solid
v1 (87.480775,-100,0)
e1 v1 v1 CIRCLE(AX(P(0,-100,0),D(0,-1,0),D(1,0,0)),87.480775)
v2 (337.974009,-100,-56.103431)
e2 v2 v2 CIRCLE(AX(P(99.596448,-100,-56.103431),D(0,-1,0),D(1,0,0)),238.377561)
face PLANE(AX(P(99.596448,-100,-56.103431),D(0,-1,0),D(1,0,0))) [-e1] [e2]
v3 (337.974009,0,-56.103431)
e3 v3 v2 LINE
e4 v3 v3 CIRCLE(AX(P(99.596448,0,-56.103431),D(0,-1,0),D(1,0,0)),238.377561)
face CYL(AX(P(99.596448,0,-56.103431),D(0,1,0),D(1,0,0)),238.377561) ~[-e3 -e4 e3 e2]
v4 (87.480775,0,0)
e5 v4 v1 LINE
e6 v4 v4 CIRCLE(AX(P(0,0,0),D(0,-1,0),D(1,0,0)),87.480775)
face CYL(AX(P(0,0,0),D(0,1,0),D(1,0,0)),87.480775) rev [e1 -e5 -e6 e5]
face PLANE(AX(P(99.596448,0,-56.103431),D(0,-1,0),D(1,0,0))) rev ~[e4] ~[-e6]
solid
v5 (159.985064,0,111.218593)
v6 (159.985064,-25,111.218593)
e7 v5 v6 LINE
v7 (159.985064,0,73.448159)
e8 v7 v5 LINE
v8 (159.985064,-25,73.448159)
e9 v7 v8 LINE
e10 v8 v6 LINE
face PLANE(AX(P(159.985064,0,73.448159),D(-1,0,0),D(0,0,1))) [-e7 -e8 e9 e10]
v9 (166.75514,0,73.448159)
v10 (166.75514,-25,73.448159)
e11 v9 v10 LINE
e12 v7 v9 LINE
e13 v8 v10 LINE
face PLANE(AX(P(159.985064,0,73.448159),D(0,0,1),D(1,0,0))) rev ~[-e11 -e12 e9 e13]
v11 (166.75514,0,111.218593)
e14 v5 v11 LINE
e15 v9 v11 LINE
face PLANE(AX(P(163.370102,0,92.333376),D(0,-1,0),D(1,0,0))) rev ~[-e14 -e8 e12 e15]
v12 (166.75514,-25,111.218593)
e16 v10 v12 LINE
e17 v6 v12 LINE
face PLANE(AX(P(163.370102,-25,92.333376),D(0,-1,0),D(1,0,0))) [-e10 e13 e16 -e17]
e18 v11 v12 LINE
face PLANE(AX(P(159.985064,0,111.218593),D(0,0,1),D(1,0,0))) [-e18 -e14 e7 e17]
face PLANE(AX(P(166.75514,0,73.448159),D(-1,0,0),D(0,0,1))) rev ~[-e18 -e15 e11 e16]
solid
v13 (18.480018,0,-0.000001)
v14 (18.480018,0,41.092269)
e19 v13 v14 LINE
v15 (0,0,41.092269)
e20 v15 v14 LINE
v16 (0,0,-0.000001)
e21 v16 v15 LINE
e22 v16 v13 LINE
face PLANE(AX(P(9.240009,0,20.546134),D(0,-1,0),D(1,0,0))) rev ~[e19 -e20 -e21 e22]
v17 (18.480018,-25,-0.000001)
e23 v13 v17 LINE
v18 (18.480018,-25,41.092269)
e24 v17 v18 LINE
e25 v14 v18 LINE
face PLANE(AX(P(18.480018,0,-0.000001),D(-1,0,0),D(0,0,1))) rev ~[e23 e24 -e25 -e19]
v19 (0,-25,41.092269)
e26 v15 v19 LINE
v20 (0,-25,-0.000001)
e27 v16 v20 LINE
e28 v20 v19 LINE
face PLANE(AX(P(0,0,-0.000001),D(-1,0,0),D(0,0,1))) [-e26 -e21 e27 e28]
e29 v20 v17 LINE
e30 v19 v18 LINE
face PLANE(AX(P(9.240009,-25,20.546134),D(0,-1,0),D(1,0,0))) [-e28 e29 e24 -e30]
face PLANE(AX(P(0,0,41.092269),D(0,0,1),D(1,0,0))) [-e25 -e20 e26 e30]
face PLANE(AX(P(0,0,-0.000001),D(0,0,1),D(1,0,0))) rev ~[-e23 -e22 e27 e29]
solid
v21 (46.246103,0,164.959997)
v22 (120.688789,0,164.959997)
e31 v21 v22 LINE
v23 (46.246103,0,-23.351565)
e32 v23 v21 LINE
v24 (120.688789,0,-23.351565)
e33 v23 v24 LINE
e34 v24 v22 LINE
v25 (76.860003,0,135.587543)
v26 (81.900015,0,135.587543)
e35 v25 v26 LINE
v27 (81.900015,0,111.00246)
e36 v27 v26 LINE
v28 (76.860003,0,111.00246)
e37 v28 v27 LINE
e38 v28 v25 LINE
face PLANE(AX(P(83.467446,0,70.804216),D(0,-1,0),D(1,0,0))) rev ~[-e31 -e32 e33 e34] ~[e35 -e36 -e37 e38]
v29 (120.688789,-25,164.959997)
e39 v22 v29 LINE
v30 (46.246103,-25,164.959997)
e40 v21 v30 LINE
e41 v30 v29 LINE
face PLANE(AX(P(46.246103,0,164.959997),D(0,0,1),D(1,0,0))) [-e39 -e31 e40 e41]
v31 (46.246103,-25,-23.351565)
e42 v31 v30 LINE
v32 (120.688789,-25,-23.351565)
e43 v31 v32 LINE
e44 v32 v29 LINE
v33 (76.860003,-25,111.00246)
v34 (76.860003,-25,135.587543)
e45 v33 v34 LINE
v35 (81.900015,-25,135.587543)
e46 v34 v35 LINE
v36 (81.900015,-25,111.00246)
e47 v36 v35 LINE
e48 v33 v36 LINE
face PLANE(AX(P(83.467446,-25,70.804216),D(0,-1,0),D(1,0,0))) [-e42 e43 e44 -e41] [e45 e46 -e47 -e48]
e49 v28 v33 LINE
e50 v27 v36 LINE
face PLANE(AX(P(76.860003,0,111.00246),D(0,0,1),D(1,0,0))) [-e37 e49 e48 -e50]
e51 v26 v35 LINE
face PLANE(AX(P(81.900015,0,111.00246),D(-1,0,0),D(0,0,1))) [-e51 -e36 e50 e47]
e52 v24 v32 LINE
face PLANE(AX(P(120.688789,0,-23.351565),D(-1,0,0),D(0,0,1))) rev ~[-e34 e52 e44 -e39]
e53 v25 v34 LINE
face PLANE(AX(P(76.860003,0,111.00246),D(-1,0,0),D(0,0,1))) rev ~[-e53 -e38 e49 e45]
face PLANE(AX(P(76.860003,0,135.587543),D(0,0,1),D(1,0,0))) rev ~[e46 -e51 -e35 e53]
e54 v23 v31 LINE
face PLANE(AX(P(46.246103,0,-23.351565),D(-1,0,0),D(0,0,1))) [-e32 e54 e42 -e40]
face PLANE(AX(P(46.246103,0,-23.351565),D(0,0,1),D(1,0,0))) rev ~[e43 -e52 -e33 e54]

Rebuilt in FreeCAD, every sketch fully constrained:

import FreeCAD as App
import Part
import Sketcher

V = App.Vector
Q = App.Units.Quantity

doc = App.newDocument("Part")
body = doc.addObject("PartDesign::Body", "Body")
body.AllowCompound = True

# Sketch on XZ plane
sketch1 = body.newObject("Sketcher::SketchObject", "Sketch")
sketch1.AttachmentSupport = (doc.getObject("XZ_Plane"), [""])
sketch1.MapMode = "FlatFace"
sketch1.addGeometry([
    Part.LineSegment(V(0, 41, 0), V(0, 0, 0)),  # 0
    Part.LineSegment(V(0, 0, 0), V(18, 0, 0)),  # 1
    Part.LineSegment(V(18, 0, 0), V(18, 41, 0)),  # 2
    Part.LineSegment(V(18, 41, 0), V(0, 41, 0)),  # 3
    Part.LineSegment(V(46, 165, 0), V(46, -23, 0)),  # 4
    Part.LineSegment(V(46, -23, 0), V(121, -23, 0)),  # 5
    Part.LineSegment(V(121, -23, 0), V(121, 165, 0)),  # 6
    Part.LineSegment(V(121, 165, 0), V(46, 165, 0)),  # 7
    Part.LineSegment(V(82, 111, 0), V(77, 111, 0)),  # 8
    Part.LineSegment(V(77, 111, 0), V(77, 136, 0)),  # 9
    Part.LineSegment(V(77, 136, 0), V(82, 136, 0)),  # 10
    Part.LineSegment(V(82, 136, 0), V(82, 111, 0)),  # 11
    Part.LineSegment(V(160, 111, 0), V(160, 73, 0)),  # 12
    Part.LineSegment(V(160, 73, 0), V(167, 73, 0)),  # 13
    Part.LineSegment(V(167, 73, 0), V(167, 111, 0)),  # 14
    Part.LineSegment(V(167, 111, 0), V(160, 111, 0)),  # 15
], False)
sketch1.addConstraint([
    Sketcher.Constraint("Coincident", 0, 2, 1, 1),
    Sketcher.Constraint("Coincident", 1, 2, 2, 1),
    Sketcher.Constraint("Coincident", 2, 2, 3, 1),
    Sketcher.Constraint("Coincident", 3, 2, 0, 1),
    Sketcher.Constraint("Coincident", 4, 2, 5, 1),
    Sketcher.Constraint("Coincident", 5, 2, 6, 1),
    Sketcher.Constraint("Coincident", 6, 2, 7, 1),
    Sketcher.Constraint("Coincident", 7, 2, 4, 1),
    Sketcher.Constraint("Coincident", 8, 2, 9, 1),
    Sketcher.Constraint("Coincident", 9, 2, 10, 1),
    Sketcher.Constraint("Coincident", 10, 2, 11, 1),
    Sketcher.Constraint("Coincident", 11, 2, 8, 1),
    Sketcher.Constraint("Coincident", 12, 2, 13, 1),
    Sketcher.Constraint("Coincident", 13, 2, 14, 1),
    Sketcher.Constraint("Coincident", 14, 2, 15, 1),
    Sketcher.Constraint("Coincident", 15, 2, 12, 1),
    Sketcher.Constraint("Vertical", 0),
    Sketcher.Constraint("Horizontal", 1),
    Sketcher.Constraint("Vertical", 2),
    Sketcher.Constraint("Horizontal", 3),
    Sketcher.Constraint("Vertical", 4),
    Sketcher.Constraint("Horizontal", 5),
    Sketcher.Constraint("Vertical", 6),
    Sketcher.Constraint("Horizontal", 7),
    Sketcher.Constraint("Horizontal", 8),
    Sketcher.Constraint("Vertical", 9),
    Sketcher.Constraint("Horizontal", 10),
    Sketcher.Constraint("Vertical", 11),
    Sketcher.Constraint("Vertical", 12),
    Sketcher.Constraint("Horizontal", 13),
    Sketcher.Constraint("Vertical", 14),
    Sketcher.Constraint("Horizontal", 15),
    Sketcher.Constraint("Coincident", 0, 2, -1, 1),
    Sketcher.Constraint("DistanceX", 1, 1, 1, 2, Q("18.480018 mm")),
    Sketcher.Constraint("DistanceX", 8, 2, 8, 1, Q("5.040012 mm")),
    Sketcher.Constraint("DistanceY", 0, 2, 0, 1, Q("41.092269 mm")),
    Sketcher.Constraint("DistanceY", 4, 2, 4, 1, Q("188.311562 mm")),
    Sketcher.Constraint("DistanceX", 7, 2, 8, 2, Q("30.6139 mm")),
    Sketcher.Constraint("DistanceY", 12, 2, 11, 2, Q("37.554301 mm")),
    Sketcher.Constraint("DistanceX", 5, 1, 5, 2, Q("74.442685 mm")),
    Sketcher.Constraint("DistanceX", 13, 1, 13, 2, Q("6.770075 mm")),
    Sketcher.Constraint("DistanceY", 9, 1, 9, 2, Q("24.585083 mm")),
    Sketcher.Constraint("DistanceY", 12, 2, 12, 1, Q("37.770435 mm")),
    Sketcher.Constraint("DistanceX", -1, 1, 5, 2, Q("120.688789 mm")),
    Sketcher.Constraint("DistanceY", -1, 1, 8, 2, Q("111.00246 mm")),
    Sketcher.Constraint("DistanceX", -1, 1, 13, 2, Q("166.75514 mm")),
    Sketcher.Constraint("DistanceY", 2, 2, 6, 2, Q("123.867728 mm")),
])
pad1 = body.newObject("PartDesign::Pad", "Pad")
pad1.Profile = sketch1
pad1.Length = 25
body2 = doc.addObject("PartDesign::Body", "Body001")

# Sketch on XZ plane
sketch2 = body2.newObject("Sketcher::SketchObject", "Sketch001")
sketch2.AttachmentSupport = (doc.getObject("XZ_Plane001"), [""])
sketch2.MapMode = "FlatFace"
sketch2.addGeometry([
    Part.Circle(V(100, -56, 0), V(0, 0, 1), 238),
    Part.Circle(V(0, 0, 0), V(0, 0, 1), 87),
], False)
sketch2.addConstraint([
    Sketcher.Constraint("Coincident", 1, 3, -1, 1),
    Sketcher.Constraint("Diameter", 0, Q("476.755122 mm")),
    Sketcher.Constraint("Diameter", 1, Q("174.96155 mm")),
    Sketcher.Constraint("DistanceY", 0, 3, -1, 1, Q("56.103431 mm")),
    Sketcher.Constraint("DistanceX", -1, 1, 0, 3, Q("99.596448 mm")),
])
pad2 = body2.newObject("PartDesign::Pad", "Pad001")
pad2.Profile = sketch2
pad2.Length = 100

doc.recompute()
